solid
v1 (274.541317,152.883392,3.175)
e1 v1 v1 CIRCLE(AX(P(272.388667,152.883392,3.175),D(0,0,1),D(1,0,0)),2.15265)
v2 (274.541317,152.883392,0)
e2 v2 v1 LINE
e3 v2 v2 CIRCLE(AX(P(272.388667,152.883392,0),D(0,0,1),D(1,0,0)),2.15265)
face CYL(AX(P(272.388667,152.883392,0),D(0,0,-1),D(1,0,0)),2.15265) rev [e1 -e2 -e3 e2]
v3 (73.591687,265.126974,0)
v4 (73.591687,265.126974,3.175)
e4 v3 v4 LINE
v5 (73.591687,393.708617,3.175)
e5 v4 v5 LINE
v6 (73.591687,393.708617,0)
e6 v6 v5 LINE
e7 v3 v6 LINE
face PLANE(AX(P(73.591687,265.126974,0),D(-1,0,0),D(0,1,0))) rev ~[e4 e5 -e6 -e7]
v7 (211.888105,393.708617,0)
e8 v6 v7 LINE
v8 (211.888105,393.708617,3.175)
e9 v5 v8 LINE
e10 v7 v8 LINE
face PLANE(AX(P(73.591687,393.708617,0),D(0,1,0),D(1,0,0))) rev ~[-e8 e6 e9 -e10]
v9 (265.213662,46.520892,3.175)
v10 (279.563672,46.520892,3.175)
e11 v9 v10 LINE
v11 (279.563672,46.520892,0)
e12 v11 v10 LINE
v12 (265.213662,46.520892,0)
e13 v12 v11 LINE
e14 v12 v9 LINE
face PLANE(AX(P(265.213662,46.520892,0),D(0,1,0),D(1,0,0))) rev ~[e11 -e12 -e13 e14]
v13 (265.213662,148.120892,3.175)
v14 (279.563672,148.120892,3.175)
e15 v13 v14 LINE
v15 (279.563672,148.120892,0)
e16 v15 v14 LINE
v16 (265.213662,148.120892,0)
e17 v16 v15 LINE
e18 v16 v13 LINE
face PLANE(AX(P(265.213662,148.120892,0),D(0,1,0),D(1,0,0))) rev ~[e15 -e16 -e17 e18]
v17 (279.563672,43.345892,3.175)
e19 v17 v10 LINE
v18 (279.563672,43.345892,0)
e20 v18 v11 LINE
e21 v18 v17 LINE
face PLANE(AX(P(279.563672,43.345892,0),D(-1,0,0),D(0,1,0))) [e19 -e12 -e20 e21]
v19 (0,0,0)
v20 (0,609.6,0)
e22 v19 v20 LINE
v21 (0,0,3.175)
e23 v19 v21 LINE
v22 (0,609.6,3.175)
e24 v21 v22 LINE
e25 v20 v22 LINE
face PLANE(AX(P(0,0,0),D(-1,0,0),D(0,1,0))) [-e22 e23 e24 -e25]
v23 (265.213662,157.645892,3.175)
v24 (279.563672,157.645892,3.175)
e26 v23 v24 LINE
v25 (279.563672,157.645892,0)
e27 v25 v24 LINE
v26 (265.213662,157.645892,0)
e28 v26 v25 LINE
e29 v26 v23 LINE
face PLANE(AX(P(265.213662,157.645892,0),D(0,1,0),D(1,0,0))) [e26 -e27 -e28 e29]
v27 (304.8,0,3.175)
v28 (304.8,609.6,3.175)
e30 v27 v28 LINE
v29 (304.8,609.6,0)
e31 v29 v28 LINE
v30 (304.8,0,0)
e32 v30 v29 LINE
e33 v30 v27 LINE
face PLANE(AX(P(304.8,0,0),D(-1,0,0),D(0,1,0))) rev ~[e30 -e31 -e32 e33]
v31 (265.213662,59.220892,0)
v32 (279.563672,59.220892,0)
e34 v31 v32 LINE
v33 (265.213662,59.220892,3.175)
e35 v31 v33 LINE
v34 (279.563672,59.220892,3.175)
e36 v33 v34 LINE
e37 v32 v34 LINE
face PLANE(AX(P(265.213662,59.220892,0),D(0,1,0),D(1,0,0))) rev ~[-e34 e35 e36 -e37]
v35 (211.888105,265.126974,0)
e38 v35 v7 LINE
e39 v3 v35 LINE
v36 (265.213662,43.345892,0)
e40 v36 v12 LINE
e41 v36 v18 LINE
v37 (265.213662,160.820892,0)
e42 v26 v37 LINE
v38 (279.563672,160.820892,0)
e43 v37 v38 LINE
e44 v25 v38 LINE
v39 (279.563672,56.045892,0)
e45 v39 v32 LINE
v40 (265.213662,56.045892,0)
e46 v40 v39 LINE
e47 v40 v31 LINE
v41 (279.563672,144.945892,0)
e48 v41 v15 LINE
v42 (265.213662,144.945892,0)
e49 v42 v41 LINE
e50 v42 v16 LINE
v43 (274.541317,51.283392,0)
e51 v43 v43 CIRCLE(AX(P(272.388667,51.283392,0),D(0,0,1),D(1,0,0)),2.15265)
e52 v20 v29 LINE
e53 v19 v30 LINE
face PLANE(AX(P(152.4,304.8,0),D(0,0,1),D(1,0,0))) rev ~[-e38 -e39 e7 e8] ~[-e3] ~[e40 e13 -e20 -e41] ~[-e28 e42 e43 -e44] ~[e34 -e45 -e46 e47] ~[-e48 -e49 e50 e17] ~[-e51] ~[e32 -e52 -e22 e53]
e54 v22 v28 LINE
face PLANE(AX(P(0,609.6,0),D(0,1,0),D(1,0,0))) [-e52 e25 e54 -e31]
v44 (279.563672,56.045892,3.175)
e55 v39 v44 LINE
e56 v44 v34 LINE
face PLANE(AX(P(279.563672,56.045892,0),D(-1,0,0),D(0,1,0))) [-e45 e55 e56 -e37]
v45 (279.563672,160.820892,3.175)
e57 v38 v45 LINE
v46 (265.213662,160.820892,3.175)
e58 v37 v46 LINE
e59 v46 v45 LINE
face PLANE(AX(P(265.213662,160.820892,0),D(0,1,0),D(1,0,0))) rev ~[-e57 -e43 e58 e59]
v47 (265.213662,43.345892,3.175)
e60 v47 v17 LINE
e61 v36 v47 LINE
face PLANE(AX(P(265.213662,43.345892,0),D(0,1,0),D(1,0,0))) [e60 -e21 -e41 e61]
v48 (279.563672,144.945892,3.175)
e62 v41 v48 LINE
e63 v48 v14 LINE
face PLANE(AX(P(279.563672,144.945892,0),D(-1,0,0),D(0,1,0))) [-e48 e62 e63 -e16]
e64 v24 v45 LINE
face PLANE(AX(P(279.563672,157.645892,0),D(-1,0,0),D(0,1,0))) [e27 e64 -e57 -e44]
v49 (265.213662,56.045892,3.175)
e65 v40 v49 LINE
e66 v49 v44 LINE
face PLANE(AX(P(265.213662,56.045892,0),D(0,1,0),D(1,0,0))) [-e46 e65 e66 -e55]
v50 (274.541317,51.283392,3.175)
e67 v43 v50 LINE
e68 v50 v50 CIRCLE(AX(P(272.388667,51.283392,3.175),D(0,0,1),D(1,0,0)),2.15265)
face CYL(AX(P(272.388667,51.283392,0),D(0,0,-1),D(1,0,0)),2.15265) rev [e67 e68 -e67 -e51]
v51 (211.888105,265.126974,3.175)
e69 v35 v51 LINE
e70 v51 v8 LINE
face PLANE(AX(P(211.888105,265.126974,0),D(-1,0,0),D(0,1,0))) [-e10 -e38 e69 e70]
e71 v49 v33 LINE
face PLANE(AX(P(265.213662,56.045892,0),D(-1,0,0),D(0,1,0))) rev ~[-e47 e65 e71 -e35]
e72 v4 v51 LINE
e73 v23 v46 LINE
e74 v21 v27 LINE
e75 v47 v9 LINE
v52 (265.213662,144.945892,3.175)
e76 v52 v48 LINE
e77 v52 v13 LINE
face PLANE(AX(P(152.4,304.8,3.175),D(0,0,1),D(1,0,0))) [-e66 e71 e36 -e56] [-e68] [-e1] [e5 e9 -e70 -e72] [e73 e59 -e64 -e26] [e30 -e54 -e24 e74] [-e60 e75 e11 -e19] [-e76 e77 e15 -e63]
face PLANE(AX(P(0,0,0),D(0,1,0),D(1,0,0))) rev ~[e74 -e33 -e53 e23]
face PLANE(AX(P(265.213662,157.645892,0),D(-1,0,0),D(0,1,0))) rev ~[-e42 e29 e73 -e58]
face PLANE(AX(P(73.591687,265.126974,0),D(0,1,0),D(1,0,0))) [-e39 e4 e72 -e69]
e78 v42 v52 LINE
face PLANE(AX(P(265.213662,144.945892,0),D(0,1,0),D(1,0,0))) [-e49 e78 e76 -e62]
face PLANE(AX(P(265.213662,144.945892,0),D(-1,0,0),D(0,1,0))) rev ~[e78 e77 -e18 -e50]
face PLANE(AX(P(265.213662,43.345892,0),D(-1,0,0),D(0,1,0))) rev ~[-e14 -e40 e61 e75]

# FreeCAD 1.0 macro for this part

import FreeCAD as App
import Part
import Sketcher
from FreeCAD import Vector
Q = App.Units.Quantity


def add_polygon(sketch, points):
    """Adds a closed chain of lines whose ends are joined by coincident constraints."""
    first, n = sketch.GeometryCount, len(points)
    for a, b in zip(points, points[1:] + points[:1]):
        sketch.addGeometry(Part.LineSegment(App.Vector(*a, 0), App.Vector(*b, 0)), False)
    for i in range(n):
        sketch.addConstraint(Sketcher.Constraint("Coincident", first + i, 2, first + (i + 1) % n, 1))

doc = App.newDocument("Part")
body = doc.addObject("PartDesign::Body", "Body")

# Sketch on XY plane
sketch1 = body.newObject("Sketcher::SketchObject", "Sketch")
sketch1.AttachmentSupport = (doc.getObject("XY_Plane"), [""])
sketch1.MapMode = "FlatFace"
add_polygon(sketch1, [(0, 609.6), (0, 0), (304.8, 0), (304.8, 609.6)])  # lines 0-3
add_polygon(sketch1, [(279.563672, 43.345892), (265.213662, 43.345892), (265.213662, 46.520892), (279.563672, 46.520892)])  # lines 4-7
sketch1.addGeometry(Part.Circle(Vector(272.388667, 51.283392, 0), Vector(0, 0, 1), 2.15265), False)  # 8
add_polygon(sketch1, [(279.563672, 56.045892), (265.213662, 56.045892), (265.213662, 59.220892), (279.563672, 59.220892)])  # lines 9-12
add_polygon(sketch1, [(279.563672, 144.945892), (265.213662, 144.945892), (265.213662, 148.120892), (279.563672, 148.120892)])  # lines 13-16
sketch1.addGeometry(Part.Circle(Vector(272.388667, 152.883392, 0), Vector(0, 0, 1), 2.15265), False)  # 17
add_polygon(sketch1, [(279.563672, 157.645892), (265.213662, 157.645892), (265.213662, 160.820892), (279.563672, 160.820892)])  # lines 18-21
add_polygon(sketch1, [(211.888105, 265.126974), (73.591687, 265.126974), (73.591687, 393.708617), (211.888105, 393.708617)])  # lines 22-25
sketch1.addConstraint([
    Sketcher.Constraint("Vertical", 0),
    Sketcher.Constraint("Horizontal", 1),
    Sketcher.Constraint("Vertical", 2),
    Sketcher.Constraint("Horizontal", 3),
    Sketcher.Constraint("Horizontal", 4),
    Sketcher.Constraint("Vertical", 5),
    Sketcher.Constraint("Horizontal", 6),
    Sketcher.Constraint("Vertical", 7),
    Sketcher.Constraint("Horizontal", 9),
    Sketcher.Constraint("Vertical", 10),
    Sketcher.Constraint("Horizontal", 11),
    Sketcher.Constraint("Vertical", 12),
    Sketcher.Constraint("Horizontal", 13),
    Sketcher.Constraint("Vertical", 14),
    Sketcher.Constraint("Horizontal", 15),
    Sketcher.Constraint("Vertical", 16),
    Sketcher.Constraint("Horizontal", 18),
    Sketcher.Constraint("Vertical", 19),
    Sketcher.Constraint("Horizontal", 20),
    Sketcher.Constraint("Vertical", 21),
    Sketcher.Constraint("Horizontal", 22),
    Sketcher.Constraint("Vertical", 23),
    Sketcher.Constraint("Horizontal", 24),
    Sketcher.Constraint("Vertical", 25),
    Sketcher.Constraint("Coincident", 0, 2, -1, 1),
    Sketcher.Constraint("Equal", 8, 17),
    Sketcher.Constraint("Vertical", 8, 3, 17, 3),
    Sketcher.Constraint("Vertical", 5, 2, 9, 2),
    Sketcher.Constraint("Vertical", 7, 2, 11, 2),
    Sketcher.Constraint("Vertical", 10, 2, 13, 2),
    Sketcher.Constraint("Vertical", 12, 2, 15, 2),
    Sketcher.Constraint("Vertical", 14, 2, 18, 2),
    Sketcher.Constraint("Vertical", 16, 2, 20, 2),
    Sketcher.Constraint("Equal", 7, 10),
    Sketcher.Constraint("Equal", 12, 14),
    Sketcher.Constraint("Equal", 16, 19),
    Sketcher.Constraint("DistanceX", 1, 1, 1, 2, Q("12 in")),
    Sketcher.Constraint("DistanceY", 0, 2, 0, 1, Q("24 in")),
    Sketcher.Constraint("DistanceY", 8, 3, 17, 3, Q("4 in")),
    Sketcher.Constraint("Diameter", 8, Q("0.1695 in")),
    Sketcher.Constraint("DistanceY", 4, 2, 9, 2, Q("0.5 in")),
    Sketcher.Constraint("DistanceY", 9, 2, 13, 2, Q("3.5 in")),
    Sketcher.Constraint("DistanceY", 13, 2, 18, 2, Q("0.5 in")),
    Sketcher.Constraint("DistanceY", 5, 1, 5, 2, Q("0.125 in")),
    Sketcher.Constraint("DistanceY", 4, 2, 8, 3, Q("0.3125 in")),
    Sketcher.Constraint("DistanceX", 4, 2, 4, 1, 14.35001),
    Sketcher.Constraint("DistanceX", 22, 2, 22, 1, 138.296418),
    Sketcher.Constraint("DistanceY", 23, 1, 23, 2, 128.581643),
    Sketcher.Constraint("DistanceY", -1, 1, 17, 3, 152.883392),
    Sketcher.Constraint("DistanceX", -1, 1, 4, 2, 265.213662),
    Sketcher.Constraint("DistanceY", 19, 2, 22, 2, 104.306082),
    Sketcher.Constraint("DistanceX", 22, 2, 17, 3, 198.79698),
    Sketcher.Constraint("DistanceX", -1, 1, 8, 3, 272.388667),
])
pad1 = body.newObject("PartDesign::Pad", "Pad")
pad1.Profile = sketch1
pad1.Length = Q("0.125 in")

doc.recompute()
